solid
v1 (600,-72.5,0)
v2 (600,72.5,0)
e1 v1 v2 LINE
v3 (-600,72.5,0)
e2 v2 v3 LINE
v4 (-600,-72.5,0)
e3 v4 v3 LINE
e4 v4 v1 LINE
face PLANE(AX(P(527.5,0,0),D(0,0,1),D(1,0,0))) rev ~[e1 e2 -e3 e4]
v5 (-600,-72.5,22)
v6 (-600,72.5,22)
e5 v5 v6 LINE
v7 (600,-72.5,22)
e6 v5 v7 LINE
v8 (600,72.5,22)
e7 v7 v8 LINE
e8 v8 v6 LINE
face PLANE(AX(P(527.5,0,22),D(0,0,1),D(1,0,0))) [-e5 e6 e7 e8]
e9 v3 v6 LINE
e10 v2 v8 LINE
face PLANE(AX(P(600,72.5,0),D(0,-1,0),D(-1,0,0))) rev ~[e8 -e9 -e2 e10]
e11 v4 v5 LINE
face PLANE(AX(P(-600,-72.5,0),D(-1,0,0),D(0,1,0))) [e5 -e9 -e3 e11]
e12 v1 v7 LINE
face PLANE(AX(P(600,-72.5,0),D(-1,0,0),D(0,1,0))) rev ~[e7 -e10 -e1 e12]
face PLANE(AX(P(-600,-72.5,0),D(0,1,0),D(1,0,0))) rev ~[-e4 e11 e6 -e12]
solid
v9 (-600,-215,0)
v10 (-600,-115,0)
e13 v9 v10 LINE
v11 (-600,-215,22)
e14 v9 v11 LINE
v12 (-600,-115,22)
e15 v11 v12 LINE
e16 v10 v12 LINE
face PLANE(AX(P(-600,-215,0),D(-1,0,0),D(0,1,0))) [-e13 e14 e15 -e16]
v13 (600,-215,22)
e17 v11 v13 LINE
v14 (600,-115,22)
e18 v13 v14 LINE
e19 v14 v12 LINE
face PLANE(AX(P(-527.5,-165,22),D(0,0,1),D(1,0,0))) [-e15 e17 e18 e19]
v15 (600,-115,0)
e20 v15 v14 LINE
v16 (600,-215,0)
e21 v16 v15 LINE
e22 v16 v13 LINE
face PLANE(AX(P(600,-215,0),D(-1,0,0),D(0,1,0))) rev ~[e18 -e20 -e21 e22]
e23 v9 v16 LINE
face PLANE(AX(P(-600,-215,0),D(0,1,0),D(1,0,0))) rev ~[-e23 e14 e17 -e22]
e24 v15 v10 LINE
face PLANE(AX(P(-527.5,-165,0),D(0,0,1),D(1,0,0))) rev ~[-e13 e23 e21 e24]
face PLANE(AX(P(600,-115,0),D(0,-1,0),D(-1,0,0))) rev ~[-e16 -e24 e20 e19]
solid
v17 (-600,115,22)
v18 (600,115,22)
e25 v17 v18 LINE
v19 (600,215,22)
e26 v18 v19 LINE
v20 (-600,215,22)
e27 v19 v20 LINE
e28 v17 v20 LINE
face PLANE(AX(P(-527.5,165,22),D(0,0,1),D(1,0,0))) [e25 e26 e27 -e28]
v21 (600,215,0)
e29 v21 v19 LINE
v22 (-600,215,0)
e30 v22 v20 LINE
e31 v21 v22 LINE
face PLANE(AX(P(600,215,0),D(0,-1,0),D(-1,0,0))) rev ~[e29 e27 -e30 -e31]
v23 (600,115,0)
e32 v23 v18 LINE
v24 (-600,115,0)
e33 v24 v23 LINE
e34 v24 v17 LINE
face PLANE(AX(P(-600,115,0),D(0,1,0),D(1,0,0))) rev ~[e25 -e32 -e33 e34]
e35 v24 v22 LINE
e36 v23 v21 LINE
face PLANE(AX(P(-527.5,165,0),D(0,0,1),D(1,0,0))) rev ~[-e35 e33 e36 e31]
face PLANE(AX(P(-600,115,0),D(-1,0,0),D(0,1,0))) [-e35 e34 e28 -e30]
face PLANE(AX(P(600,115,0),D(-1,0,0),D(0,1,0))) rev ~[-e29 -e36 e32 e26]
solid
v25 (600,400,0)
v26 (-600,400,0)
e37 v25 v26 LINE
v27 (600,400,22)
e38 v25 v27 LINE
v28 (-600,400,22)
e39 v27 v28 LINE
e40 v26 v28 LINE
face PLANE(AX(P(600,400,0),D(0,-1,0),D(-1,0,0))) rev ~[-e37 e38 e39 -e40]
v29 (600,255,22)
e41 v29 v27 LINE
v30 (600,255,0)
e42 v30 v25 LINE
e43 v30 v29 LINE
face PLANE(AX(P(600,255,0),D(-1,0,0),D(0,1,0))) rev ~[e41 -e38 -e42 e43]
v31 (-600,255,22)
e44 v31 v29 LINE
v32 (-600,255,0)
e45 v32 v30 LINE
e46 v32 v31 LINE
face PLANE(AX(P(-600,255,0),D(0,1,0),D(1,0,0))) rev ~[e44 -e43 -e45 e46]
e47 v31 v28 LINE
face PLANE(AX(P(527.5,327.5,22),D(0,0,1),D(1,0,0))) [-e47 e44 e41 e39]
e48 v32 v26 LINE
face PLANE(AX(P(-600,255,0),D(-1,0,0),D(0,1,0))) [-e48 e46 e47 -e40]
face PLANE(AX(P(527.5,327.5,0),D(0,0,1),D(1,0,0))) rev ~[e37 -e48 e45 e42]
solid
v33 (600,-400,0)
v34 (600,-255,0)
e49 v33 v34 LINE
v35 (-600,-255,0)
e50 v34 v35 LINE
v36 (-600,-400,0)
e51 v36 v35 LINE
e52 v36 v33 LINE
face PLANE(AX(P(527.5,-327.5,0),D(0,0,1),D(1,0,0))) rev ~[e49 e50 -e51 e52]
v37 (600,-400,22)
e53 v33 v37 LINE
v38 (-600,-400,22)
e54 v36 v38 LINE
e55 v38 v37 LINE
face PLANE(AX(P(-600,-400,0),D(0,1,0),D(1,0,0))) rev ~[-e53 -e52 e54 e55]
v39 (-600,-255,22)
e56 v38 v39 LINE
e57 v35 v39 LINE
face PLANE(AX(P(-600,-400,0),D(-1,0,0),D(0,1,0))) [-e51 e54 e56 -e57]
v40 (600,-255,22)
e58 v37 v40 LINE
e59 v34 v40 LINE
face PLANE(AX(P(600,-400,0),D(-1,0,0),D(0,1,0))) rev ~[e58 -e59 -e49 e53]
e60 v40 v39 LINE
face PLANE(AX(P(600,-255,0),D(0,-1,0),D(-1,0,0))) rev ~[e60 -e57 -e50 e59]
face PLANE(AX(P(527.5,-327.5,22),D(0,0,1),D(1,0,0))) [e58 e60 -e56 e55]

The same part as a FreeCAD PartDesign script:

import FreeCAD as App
import Part
import Sketcher
from FreeCAD import Vector

doc = App.newDocument("Part")
body = doc.addObject("PartDesign::Body", "Body")

# Sketch on XY plane
sketch1 = body.newObject("Sketcher::SketchObject", "Sketch")
sketch1.AttachmentSupport = (doc.getObject("XY_Plane"), [""])
sketch1.MapMode = "FlatFace"
sketch1.addGeometry([
    Part.LineSegment(Vector(600, 255, 0), Vector(600, 400, 0)),
    Part.LineSegment(Vector(600, 400, 0), Vector(-600, 400, 0)),
    Part.LineSegment(Vector(-600, 400, 0), Vector(-600, 255, 0)),
    Part.LineSegment(Vector(-600, 255, 0), Vector(600, 255, 0)),
], False)
sketch1.addConstraint([
    Sketcher.Constraint("Coincident", 0, 2, 1, 1),
    Sketcher.Constraint("Coincident", 1, 2, 2, 1),
    Sketcher.Constraint("Coincident", 2, 2, 3, 1),
    Sketcher.Constraint("Coincident", 3, 2, 0, 1),
    Sketcher.Constraint("Vertical", 0),
    Sketcher.Constraint("Horizontal", 1),
    Sketcher.Constraint("Vertical", 2),
    Sketcher.Constraint("Horizontal", 3),
    Sketcher.Constraint("DistanceX", 1, 2, 1, 1, 1200.0),
    Sketcher.Constraint("DistanceY", 0, 1, 0, 2, 145.0),
    Sketcher.Constraint("DistanceX", -1, 1, 0, 2, 600.0),
    Sketcher.Constraint("DistanceY", -1, 1, 0, 2, 400.0),
])
pad1 = body.newObject("PartDesign::Pad", "Pad")
pad1.Profile = sketch1
pad1.Length = 22
body2 = doc.addObject("PartDesign::Body", "Body001")

# Sketch on XY plane
sketch2 = body2.newObject("Sketcher::SketchObject", "Sketch001")
sketch2.AttachmentSupport = (doc.getObject("XY_Plane001"), [""])
sketch2.MapMode = "FlatFace"
sketch2.addGeometry([
    Part.LineSegment(Vector(-600, 215, 0), Vector(-600, 115, 0)),
    Part.LineSegment(Vector(-600, 115, 0), Vector(600, 115, 0)),
    Part.LineSegment(Vector(600, 115, 0), Vector(600, 215, 0)),
    Part.LineSegment(Vector(600, 215, 0), Vector(-600, 215, 0)),
], False)
sketch2.addConstraint([
    Sketcher.Constraint("Coincident", 0, 2, 1, 1),
    Sketcher.Constraint("Coincident", 1, 2, 2, 1),
    Sketcher.Constraint("Coincident", 2, 2, 3, 1),
    Sketcher.Constraint("Coincident", 3, 2, 0, 1),
    Sketcher.Constraint("Vertical", 0),
    Sketcher.Constraint("Horizontal", 1),
    Sketcher.Constraint("Vertical", 2),
    Sketcher.Constraint("Horizontal", 3),
    Sketcher.Constraint("DistanceX", 1, 1, 1, 2, 1200.0),
    Sketcher.Constraint("DistanceY", 0, 2, 0, 1, 100.0),
    Sketcher.Constraint("DistanceX", 0, 2, -1, 1, 600.0),
    Sketcher.Constraint("DistanceY", -1, 1, 0, 2, 115.0),
])
pad2 = body2.newObject("PartDesign::Pad", "Pad001")
pad2.Profile = sketch2
pad2.Length = 22
body3 = doc.addObject("PartDesign::Body", "Body002")

# Sketch on XY plane
sketch3 = body3.newObject("Sketcher::SketchObject", "Sketch002")
sketch3.AttachmentSupport = (doc.getObject("XY_Plane002"), [""])
sketch3.MapMode = "FlatFace"
sketch3.addGeometry([
    Part.LineSegment(Vector(600, -72.5, 0), Vector(600, 72.5, 0)),
    Part.LineSegment(Vector(600, 72.5, 0), Vector(-600, 72.5, 0)),
    Part.LineSegment(Vector(-600, 72.5, 0), Vector(-600, -72.5, 0)),
    Part.LineSegment(Vector(-600, -72.5, 0), Vector(600, -72.5, 0)),
], False)
sketch3.addConstraint([
    Sketcher.Constraint("Coincident", 0, 2, 1, 1),
    Sketcher.Constraint("Coincident", 1, 2, 2, 1),
    Sketcher.Constraint("Coincident", 2, 2, 3, 1),
    Sketcher.Constraint("Coincident", 3, 2, 0, 1),
    Sketcher.Constraint("Vertical", 0),
    Sketcher.Constraint("Horizontal", 1),
    Sketcher.Constraint("Vertical", 2),
    Sketcher.Constraint("Horizontal", 3),
    Sketcher.Constraint("Symmetric", 0, 2, 2, 2, -1, 1),
    Sketcher.Constraint("DistanceX", 1, 2, 1, 1, 1200.0),
    Sketcher.Constraint("DistanceY", 0, 1, 0, 2, 145.0),
])
pad3 = body3.newObject("PartDesign::Pad", "Pad002")
pad3.Profile = sketch3
pad3.Length = 22
body4 = doc.addObject("PartDesign::Body", "Body003")

# Sketch on XY plane
sketch4 = body4.newObject("Sketcher::SketchObject", "Sketch003")
sketch4.AttachmentSupport = (doc.getObject("XY_Plane003"), [""])
sketch4.MapMode = "FlatFace"
sketch4.addGeometry([
    Part.LineSegment(Vector(-600, -115, 0), Vector(-600, -215, 0)),
    Part.LineSegment(Vector(-600, -215, 0), Vector(600, -215, 0)),
    Part.LineSegment(Vector(600, -215, 0), Vector(600, -115, 0)),
    Part.LineSegment(Vector(600, -115, 0), Vector(-600, -115, 0)),
], False)
sketch4.addConstraint([
    Sketcher.Constraint("Coincident", 0, 2, 1, 1),
    Sketcher.Constraint("Coincident", 1, 2, 2, 1),
    Sketcher.Constraint("Coincident", 2, 2, 3, 1),
    Sketcher.Constraint("Coincident", 3, 2, 0, 1),
    Sketcher.Constraint("Vertical", 0),
    Sketcher.Constraint("Horizontal", 1),
    Sketcher.Constraint("Vertical", 2),
    Sketcher.Constraint("Horizontal", 3),
    Sketcher.Constraint("DistanceX", 1, 1, 1, 2, 1200.0),
    Sketcher.Constraint("DistanceY", 0, 2, 0, 1, 100.0),
    Sketcher.Constraint("DistanceX", 0, 2, -1, 1, 600.0),
    Sketcher.Constraint("DistanceY", 0, 2, -1, 1, 215.0),
])
pad4 = body4.newObject("PartDesign::Pad", "Pad003")
pad4.Profile = sketch4
pad4.Length = 22
body5 = doc.addObject("PartDesign::Body", "Body004")

# Sketch on XY plane
sketch5 = body5.newObject("Sketcher::SketchObject", "Sketch004")
sketch5.AttachmentSupport = (doc.getObject("XY_Plane004"), [""])
sketch5.MapMode = "FlatFace"
sketch5.addGeometry([
    Part.LineSegment(Vector(600, -400, 0), Vector(600, -255, 0)),
    Part.LineSegment(Vector(600, -255, 0), Vector(-600, -255, 0)),
    Part.LineSegment(Vector(-600, -255, 0), Vector(-600, -400, 0)),
    Part.LineSegment(Vector(-600, -400, 0), Vector(600, -400, 0)),
], False)
sketch5.addConstraint([
    Sketcher.Constraint("Coincident", 0, 2, 1, 1),
    Sketcher.Constraint("Coincident", 1, 2, 2, 1),
    Sketcher.Constraint("Coincident", 2, 2, 3, 1),
    Sketcher.Constraint("Coincident", 3, 2, 0, 1),
    Sketcher.Constraint("Vertical", 0),
    Sketcher.Constraint("Horizontal", 1),
    Sketcher.Constraint("Vertical", 2),
    Sketcher.Constraint("Horizontal", 3),
    Sketcher.Constraint("DistanceX", 1, 2, 1, 1, 1200.0),
    Sketcher.Constraint("DistanceY", 0, 1, 0, 2, 145.0),
    Sketcher.Constraint("DistanceX", -1, 1, 0, 2, 600.0),
    Sketcher.Constraint("DistanceY", 0, 2, -1, 1, 255.0),
])
pad5 = body5.newObject("PartDesign::Pad", "Pad004")
pad5.Profile = sketch5
pad5.Length = 22

doc.recompute()
